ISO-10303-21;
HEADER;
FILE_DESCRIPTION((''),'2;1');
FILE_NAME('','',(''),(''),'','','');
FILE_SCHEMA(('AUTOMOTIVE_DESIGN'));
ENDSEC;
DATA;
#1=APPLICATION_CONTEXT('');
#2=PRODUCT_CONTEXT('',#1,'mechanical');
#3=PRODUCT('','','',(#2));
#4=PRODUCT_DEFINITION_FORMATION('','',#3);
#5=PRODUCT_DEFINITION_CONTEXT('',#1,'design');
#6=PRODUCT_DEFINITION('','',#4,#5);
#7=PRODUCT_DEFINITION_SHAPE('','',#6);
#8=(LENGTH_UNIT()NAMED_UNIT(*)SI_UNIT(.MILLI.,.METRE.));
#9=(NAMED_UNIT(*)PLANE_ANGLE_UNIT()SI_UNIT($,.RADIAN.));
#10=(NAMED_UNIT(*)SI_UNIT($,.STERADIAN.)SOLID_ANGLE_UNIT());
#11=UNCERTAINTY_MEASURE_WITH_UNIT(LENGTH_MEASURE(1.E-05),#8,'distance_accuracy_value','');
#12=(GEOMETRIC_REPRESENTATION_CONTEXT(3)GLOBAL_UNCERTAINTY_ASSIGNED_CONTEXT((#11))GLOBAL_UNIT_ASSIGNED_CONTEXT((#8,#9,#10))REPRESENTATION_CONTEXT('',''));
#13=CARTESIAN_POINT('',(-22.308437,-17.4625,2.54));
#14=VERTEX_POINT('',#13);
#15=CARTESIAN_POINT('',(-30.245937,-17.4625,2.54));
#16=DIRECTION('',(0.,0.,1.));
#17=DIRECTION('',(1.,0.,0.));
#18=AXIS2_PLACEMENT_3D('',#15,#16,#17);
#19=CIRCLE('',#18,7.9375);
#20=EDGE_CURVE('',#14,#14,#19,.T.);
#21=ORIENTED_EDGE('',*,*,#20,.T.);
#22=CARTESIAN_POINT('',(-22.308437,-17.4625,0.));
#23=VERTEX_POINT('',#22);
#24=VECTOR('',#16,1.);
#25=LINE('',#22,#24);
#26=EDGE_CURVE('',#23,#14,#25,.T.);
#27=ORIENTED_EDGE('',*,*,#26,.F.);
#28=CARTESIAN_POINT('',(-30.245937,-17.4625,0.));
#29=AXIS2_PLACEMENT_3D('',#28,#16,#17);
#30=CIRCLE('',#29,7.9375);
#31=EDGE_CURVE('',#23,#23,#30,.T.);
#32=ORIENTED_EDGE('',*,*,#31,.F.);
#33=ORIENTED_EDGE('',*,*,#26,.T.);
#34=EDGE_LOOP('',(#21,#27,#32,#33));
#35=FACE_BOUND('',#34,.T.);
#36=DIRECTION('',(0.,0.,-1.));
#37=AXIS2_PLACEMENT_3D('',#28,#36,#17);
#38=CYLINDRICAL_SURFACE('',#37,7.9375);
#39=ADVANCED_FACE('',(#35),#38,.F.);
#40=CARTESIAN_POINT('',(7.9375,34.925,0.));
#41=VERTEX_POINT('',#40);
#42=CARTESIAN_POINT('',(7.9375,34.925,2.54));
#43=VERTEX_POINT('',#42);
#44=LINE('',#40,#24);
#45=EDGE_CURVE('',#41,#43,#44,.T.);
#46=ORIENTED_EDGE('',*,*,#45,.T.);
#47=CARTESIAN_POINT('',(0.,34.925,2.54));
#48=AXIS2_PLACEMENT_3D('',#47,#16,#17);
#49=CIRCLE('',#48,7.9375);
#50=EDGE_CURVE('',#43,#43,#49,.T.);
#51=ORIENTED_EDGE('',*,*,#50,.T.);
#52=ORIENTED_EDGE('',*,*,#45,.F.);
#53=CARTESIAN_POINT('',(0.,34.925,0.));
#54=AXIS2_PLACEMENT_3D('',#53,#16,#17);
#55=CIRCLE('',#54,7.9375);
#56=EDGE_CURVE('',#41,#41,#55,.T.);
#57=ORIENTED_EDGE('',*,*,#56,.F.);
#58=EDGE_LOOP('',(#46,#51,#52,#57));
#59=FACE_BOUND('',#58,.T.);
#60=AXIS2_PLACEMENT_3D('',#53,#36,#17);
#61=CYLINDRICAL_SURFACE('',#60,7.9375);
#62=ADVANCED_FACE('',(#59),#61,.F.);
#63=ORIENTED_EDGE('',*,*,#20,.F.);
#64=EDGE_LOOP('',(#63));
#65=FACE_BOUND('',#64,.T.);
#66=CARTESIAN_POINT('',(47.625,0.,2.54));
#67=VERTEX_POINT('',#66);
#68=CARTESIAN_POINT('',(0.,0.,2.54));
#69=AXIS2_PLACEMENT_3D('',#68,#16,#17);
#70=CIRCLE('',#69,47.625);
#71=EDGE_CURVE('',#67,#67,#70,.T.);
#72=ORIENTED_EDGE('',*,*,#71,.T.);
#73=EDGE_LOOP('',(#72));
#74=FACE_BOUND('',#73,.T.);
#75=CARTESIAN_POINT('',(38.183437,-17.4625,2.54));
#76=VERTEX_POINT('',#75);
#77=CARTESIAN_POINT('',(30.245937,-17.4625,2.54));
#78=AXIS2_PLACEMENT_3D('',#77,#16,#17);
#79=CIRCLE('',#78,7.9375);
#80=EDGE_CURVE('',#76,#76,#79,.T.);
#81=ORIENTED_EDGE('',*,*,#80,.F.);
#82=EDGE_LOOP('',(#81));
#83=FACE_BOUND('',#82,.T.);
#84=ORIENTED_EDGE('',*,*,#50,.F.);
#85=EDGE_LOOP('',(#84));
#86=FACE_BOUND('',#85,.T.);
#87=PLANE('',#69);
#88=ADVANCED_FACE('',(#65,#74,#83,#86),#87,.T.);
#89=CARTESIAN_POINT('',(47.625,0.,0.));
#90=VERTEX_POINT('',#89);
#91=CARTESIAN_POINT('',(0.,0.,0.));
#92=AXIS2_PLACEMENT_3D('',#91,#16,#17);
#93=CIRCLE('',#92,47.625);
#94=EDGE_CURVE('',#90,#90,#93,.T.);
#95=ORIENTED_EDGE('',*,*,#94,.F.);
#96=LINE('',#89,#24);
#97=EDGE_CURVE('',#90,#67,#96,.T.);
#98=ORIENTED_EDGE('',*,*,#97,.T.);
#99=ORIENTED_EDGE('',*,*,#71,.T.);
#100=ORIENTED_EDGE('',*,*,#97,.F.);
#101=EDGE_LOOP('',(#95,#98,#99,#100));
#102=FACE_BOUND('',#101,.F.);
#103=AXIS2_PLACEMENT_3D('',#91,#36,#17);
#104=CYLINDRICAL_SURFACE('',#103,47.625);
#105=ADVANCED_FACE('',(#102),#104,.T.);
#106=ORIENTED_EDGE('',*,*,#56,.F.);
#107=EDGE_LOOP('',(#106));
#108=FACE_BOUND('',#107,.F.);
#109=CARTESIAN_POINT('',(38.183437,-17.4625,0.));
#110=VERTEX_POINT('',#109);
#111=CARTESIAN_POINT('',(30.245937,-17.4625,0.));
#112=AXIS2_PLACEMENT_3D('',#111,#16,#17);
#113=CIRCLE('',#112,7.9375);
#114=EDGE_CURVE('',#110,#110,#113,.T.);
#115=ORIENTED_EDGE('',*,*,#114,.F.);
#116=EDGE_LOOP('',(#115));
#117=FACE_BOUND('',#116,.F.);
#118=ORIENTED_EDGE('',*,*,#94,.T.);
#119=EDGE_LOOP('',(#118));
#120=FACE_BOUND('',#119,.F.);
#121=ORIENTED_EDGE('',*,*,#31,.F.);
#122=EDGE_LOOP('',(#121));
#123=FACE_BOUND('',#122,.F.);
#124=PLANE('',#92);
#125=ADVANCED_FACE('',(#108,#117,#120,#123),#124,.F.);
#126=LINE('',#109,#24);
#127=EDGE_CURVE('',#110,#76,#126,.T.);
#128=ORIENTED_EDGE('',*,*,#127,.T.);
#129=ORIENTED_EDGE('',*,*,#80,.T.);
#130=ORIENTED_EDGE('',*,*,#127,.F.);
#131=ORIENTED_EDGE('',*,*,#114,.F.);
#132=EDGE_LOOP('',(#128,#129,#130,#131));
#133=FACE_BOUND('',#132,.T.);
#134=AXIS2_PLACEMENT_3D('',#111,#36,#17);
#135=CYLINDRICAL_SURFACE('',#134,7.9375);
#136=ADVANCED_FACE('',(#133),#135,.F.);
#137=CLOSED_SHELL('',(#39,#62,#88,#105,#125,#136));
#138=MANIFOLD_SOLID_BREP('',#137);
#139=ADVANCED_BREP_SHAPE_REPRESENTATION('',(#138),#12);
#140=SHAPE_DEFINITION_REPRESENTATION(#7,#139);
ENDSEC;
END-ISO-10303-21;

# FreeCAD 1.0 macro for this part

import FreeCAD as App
import Part
import Sketcher
Q = App.Units.Quantity

doc = App.newDocument("Part")
body = doc.addObject("PartDesign::Body", "Body")

# Sketch on XY plane
sketch1 = body.newObject("Sketcher::SketchObject", "Sketch")
sketch1.AttachmentSupport = (doc.getObject("XY_Plane"), [""])
sketch1.MapMode = "FlatFace"
sketch1.addGeometry([
    Part.Circle(App.Vector(0, 0, 0), App.Vector(0, 0, 1), 48),
    Part.Circle(App.Vector(-30, -17, 0), App.Vector(0, 0, 1), 8),
    Part.Circle(App.Vector(30, -17, 0), App.Vector(0, 0, 1), 8),
    Part.Circle(App.Vector(0, 35, 0), App.Vector(0, 0, 1), 8),
], False)
sketch1.addConstraint([
    Sketcher.Constraint("Coincident", 0, 3, -1, 1),
    Sketcher.Constraint("Equal", 1, 2),
    Sketcher.Constraint("Equal", 2, 3),
    Sketcher.Constraint("Symmetric", 1, 3, 2, 3, -2),
    Sketcher.Constraint("PointOnObject", 3, 3, -2),
    Sketcher.Constraint("Diameter", 0, Q("3.75 in")),
    Sketcher.Constraint("Diameter", 1, Q("0.625 in")),
    Sketcher.Constraint("DistanceY", 1, 3, -1, 1, Q("0.6875 in")),
    Sketcher.Constraint("DistanceY", -1, 1, 3, 3, Q("1.375 in")),
    Sketcher.Constraint("DistanceX", 1, 3, -1, 1, Q("30.245937 mm")),
])
pad1 = body.newObject("PartDesign::Pad", "Pad")
pad1.Profile = sketch1
pad1.Length = Q("0.1 in")

doc.recompute()
